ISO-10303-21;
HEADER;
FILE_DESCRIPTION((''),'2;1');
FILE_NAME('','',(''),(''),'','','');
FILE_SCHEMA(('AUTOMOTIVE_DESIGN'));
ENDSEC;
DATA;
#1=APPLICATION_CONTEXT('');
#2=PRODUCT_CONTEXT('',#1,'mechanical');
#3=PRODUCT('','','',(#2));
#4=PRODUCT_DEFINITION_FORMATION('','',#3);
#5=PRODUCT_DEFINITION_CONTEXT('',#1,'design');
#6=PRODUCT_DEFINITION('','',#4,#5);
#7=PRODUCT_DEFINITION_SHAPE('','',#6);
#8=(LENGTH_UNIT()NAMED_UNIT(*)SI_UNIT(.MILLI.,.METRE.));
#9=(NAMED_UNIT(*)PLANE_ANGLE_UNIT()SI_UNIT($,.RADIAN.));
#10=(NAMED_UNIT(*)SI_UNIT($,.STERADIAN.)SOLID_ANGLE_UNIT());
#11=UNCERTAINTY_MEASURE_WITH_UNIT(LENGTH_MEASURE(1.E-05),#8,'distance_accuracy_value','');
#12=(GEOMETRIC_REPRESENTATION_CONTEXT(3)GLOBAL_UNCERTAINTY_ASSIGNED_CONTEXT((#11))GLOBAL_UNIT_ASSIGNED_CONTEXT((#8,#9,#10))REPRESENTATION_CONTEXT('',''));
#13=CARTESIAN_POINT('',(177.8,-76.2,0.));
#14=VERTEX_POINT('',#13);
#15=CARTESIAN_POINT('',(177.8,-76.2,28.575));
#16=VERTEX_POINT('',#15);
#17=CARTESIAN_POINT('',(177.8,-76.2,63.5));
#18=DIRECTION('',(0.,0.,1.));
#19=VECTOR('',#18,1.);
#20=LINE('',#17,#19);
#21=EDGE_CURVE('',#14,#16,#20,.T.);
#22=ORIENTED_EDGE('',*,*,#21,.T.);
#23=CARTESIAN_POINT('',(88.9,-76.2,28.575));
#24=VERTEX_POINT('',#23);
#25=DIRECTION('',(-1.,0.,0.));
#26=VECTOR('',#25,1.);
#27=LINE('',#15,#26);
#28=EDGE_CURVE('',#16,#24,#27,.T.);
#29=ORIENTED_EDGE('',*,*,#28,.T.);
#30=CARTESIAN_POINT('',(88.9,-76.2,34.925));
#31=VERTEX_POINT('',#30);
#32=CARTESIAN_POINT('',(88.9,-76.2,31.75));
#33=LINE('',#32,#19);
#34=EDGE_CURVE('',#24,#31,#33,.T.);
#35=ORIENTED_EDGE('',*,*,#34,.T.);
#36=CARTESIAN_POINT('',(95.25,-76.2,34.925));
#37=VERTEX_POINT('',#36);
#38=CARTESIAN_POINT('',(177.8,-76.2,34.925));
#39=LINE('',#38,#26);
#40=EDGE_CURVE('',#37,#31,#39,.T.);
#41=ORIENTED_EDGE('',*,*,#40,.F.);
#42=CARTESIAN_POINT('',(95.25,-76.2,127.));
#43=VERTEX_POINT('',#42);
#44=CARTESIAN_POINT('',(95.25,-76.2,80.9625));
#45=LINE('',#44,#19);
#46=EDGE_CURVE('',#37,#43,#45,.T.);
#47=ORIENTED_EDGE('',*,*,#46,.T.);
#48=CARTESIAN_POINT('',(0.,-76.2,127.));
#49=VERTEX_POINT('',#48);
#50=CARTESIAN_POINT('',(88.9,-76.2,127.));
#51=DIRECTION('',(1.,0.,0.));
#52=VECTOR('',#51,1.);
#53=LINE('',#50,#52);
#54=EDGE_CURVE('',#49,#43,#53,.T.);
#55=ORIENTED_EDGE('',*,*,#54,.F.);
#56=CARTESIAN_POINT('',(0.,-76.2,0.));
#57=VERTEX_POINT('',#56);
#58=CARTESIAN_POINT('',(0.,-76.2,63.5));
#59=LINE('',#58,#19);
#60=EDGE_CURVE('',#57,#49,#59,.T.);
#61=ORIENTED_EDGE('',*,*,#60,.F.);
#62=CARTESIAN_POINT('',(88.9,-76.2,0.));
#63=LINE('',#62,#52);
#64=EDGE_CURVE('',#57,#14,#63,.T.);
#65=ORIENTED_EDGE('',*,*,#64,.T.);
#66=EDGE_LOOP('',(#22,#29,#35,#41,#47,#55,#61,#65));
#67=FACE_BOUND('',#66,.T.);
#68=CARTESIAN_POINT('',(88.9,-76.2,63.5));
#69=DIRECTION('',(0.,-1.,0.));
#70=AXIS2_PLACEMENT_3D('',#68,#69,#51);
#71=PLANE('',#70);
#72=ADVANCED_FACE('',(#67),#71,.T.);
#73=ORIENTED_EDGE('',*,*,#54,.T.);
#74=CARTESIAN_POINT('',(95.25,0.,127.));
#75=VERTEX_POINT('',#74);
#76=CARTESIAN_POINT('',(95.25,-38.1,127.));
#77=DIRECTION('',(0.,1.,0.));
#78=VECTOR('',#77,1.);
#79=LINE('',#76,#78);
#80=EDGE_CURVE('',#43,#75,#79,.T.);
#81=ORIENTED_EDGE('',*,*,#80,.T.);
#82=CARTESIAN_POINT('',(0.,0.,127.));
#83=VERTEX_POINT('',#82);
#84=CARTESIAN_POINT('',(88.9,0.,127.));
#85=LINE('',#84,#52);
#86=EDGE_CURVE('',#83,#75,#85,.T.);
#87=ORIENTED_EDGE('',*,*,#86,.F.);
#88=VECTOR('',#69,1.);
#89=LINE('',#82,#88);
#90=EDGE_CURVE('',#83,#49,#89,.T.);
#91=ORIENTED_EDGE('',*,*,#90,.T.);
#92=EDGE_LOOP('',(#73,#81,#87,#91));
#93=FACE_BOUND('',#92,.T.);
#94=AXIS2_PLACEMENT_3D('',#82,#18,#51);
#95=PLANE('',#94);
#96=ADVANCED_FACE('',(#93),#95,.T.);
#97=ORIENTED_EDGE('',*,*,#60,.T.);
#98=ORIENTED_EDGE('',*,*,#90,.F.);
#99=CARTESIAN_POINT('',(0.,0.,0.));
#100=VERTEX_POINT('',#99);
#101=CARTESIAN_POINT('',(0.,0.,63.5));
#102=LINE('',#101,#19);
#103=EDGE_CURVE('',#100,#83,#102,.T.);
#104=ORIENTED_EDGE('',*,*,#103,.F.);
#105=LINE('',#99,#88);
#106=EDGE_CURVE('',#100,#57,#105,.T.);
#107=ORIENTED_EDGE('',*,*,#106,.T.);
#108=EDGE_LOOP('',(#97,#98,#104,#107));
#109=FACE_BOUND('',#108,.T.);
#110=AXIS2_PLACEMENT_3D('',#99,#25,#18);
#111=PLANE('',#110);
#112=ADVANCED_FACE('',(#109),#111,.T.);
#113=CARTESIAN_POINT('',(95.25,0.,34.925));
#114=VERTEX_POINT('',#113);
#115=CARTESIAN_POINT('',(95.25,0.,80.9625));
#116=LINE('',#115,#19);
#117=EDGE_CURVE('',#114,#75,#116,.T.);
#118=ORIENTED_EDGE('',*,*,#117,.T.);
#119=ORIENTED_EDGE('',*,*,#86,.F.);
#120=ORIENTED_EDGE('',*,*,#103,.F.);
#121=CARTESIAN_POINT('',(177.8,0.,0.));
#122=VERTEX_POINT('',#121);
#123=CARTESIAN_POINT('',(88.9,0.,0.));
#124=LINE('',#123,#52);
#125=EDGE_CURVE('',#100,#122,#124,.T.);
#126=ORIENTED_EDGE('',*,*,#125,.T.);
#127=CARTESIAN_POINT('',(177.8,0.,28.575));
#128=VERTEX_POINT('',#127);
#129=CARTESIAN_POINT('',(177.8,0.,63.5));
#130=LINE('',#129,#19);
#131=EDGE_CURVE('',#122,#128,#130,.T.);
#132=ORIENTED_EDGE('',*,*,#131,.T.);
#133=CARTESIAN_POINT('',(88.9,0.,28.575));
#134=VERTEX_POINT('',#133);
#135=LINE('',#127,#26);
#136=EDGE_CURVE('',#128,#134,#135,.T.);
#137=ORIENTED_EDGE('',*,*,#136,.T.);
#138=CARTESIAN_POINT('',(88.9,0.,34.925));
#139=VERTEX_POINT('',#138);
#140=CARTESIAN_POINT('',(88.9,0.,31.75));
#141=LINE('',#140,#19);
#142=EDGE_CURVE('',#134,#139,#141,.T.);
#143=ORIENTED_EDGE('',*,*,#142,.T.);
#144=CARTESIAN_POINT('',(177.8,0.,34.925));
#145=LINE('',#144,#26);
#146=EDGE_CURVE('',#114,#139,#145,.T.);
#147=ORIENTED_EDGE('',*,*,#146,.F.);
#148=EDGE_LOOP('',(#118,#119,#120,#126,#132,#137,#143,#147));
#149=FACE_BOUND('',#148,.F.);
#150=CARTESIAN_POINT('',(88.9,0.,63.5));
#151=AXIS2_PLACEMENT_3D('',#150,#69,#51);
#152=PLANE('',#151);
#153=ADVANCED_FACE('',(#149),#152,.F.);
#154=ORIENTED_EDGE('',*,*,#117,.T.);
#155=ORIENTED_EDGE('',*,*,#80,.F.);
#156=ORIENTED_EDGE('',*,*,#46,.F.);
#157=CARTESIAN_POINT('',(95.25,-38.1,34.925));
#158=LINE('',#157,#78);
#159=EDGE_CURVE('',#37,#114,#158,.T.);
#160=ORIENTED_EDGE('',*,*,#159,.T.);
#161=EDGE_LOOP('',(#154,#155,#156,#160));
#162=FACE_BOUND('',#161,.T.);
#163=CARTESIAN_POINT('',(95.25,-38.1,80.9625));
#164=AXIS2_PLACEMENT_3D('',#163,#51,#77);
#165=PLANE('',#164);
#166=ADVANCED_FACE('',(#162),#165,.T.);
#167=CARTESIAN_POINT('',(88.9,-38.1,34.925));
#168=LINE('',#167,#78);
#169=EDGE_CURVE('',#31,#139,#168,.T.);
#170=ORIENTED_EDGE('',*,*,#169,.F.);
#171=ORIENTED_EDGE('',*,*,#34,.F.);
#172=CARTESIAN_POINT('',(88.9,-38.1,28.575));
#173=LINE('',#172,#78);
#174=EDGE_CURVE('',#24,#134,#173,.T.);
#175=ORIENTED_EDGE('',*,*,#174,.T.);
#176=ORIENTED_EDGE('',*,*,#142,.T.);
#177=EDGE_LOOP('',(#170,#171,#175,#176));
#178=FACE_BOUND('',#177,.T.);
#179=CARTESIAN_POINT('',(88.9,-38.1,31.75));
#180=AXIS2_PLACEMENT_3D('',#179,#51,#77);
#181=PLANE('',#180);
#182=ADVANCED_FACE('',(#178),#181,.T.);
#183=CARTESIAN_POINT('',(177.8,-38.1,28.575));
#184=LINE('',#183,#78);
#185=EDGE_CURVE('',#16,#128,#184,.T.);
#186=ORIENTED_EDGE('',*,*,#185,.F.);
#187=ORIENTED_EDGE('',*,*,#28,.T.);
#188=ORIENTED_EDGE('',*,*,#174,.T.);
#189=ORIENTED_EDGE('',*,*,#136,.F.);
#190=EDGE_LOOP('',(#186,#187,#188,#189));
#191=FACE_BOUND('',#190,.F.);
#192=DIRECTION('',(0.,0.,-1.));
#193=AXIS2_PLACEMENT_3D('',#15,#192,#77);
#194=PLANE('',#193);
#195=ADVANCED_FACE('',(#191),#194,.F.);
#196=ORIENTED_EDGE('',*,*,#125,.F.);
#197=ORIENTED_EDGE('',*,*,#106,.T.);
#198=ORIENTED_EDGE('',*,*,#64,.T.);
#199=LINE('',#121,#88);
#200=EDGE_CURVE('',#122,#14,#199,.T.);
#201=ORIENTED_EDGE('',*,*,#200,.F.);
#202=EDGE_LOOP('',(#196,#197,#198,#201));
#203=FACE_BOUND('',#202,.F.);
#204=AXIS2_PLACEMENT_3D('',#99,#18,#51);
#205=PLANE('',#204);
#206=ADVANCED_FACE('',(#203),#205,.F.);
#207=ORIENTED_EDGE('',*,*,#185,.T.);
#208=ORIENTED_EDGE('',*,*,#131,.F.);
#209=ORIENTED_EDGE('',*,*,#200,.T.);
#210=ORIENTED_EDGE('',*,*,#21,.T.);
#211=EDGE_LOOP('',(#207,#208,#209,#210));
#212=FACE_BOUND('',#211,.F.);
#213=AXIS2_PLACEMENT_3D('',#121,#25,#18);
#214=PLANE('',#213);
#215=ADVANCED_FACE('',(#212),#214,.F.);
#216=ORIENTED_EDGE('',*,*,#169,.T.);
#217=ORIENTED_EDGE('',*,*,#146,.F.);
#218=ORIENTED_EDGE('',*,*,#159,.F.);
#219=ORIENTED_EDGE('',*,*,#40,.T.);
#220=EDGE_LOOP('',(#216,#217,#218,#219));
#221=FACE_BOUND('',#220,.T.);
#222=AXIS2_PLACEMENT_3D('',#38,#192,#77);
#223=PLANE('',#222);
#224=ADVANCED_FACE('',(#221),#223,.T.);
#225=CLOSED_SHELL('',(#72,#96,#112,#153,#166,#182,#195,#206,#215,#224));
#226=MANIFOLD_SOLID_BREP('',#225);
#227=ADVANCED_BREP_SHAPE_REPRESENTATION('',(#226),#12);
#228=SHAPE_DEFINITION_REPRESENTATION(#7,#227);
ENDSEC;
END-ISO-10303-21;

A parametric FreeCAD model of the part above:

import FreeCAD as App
import Part
import Sketcher
Q = App.Units.Quantity


def add_polygon(sketch, points):
    """Adds a closed chain of lines whose ends are joined by coincident constraints."""
    first, n = sketch.GeometryCount, len(points)
    for a, b in zip(points, points[1:] + points[:1]):
        sketch.addGeometry(Part.LineSegment(App.Vector(*a, 0), App.Vector(*b, 0)), False)
    for i in range(n):
        sketch.addConstraint(Sketcher.Constraint("Coincident", first + i, 2, first + (i + 1) % n, 1))

doc = App.newDocument("Part")
params = doc.addObject("Spreadsheet::Sheet", "Params")
for row, (alias, value) in enumerate([
    ("sketch1_width", "7 in"),
    ("sketch1_height", "5 in"),
    ("pad1_length", "3 in"),
    ("sketch2_width", "3 in"),
    ("sketch2_height", "3.625 in"),
    ("pocket1_length", "3.25 in"),
    ("sketch3_width", "3 in"),
    ("sketch3_height", "0.25 in"),
    ("pocket2_length", "3.5 in"),
], start=1):
    params.set(f"A{row}", alias)
    params.set(f"B{row}", "=" + value)
    params.setAlias(f"B{row}", alias)

body = doc.addObject("PartDesign::Body", "Body")

# Sketch on XZ plane
sketch1 = body.newObject("Sketcher::SketchObject", "Sketch")
sketch1.AttachmentSupport = (doc.getObject("XZ_Plane"), [""])
sketch1.MapMode = "FlatFace"
add_polygon(sketch1, [(0, 127), (0, 0), (178, 0), (178, 127)])  # lines 0-3
sketch1.addConstraint(Sketcher.Constraint("Vertical", 0))
sketch1.addConstraint(Sketcher.Constraint("Horizontal", 1))
sketch1.addConstraint(Sketcher.Constraint("Vertical", 2))
sketch1.addConstraint(Sketcher.Constraint("Horizontal", 3))
sketch1.addConstraint(Sketcher.Constraint("Coincident", 0, 2, -1, 1))
sketch1.addConstraint(Sketcher.Constraint("DistanceX", 1, 1, 1, 2, Q("7 in")))
sketch1.addConstraint(Sketcher.Constraint("DistanceY", 0, 2, 0, 1, Q("5 in")))
sketch1.setExpression("Constraints[9]", "Params.sketch1_width")
sketch1.setExpression("Constraints[10]", "Params.sketch1_height")
pad1 = body.newObject("PartDesign::Pad", "Pad")
pad1.Profile = sketch1
pad1.setExpression("Length", "Params.pad1_length")

# Sketch on YZ plane
sketch2 = body.newObject("Sketcher::SketchObject", "Sketch001")
sketch2.AttachmentSupport = (doc.getObject("YZ_Plane"), [""])
sketch2.MapMode = "FlatFace"
sketch2.AttachmentOffset = App.Placement(App.Vector(0, 0, 7 * 25.4), App.Rotation())
add_polygon(sketch2, [(-76, 127), (-76, 35), (0, 35), (0, 127)])  # lines 0-3
sketch2.addConstraint(Sketcher.Constraint("Vertical", 0))
sketch2.addConstraint(Sketcher.Constraint("Horizontal", 1))
sketch2.addConstraint(Sketcher.Constraint("Vertical", 2))
sketch2.addConstraint(Sketcher.Constraint("Horizontal", 3))
sketch2.addConstraint(Sketcher.Constraint("PointOnObject", 1, 2, -2))
sketch2.addConstraint(Sketcher.Constraint("DistanceX", 1, 1, 1, 2, Q("3 in")))
sketch2.addConstraint(Sketcher.Constraint("DistanceY", -1, 1, 2, 2, Q("5 in")))
sketch2.addConstraint(Sketcher.Constraint("DistanceY", 0, 2, 0, 1, Q("3.625 in")))
sketch2.setExpression("Constraints[9]", "Params.sketch2_width")
sketch2.setExpression("Constraints[11]", "Params.sketch2_height")
pocket1 = body.newObject("PartDesign::Pocket", "Pocket")
pocket1.Profile = sketch2
pocket1.setExpression("Length", "Params.pocket1_length")

# Sketch on YZ plane
sketch3 = body.newObject("Sketcher::SketchObject", "Sketch002")
sketch3.AttachmentSupport = (doc.getObject("YZ_Plane"), [""])
sketch3.MapMode = "FlatFace"
sketch3.AttachmentOffset = App.Placement(App.Vector(0, 0, 7 * 25.4), App.Rotation())
add_polygon(sketch3, [(-76, 35), (-76, 29), (0, 29), (0, 35)])  # lines 0-3
sketch3.addConstraint(Sketcher.Constraint("Vertical", 0))
sketch3.addConstraint(Sketcher.Constraint("Horizontal", 1))
sketch3.addConstraint(Sketcher.Constraint("Vertical", 2))
sketch3.addConstraint(Sketcher.Constraint("Horizontal", 3))
sketch3.addConstraint(Sketcher.Constraint("PointOnObject", 1, 2, -2))
sketch3.addConstraint(Sketcher.Constraint("DistanceX", 1, 1, 1, 2, Q("3 in")))
sketch3.addConstraint(Sketcher.Constraint("DistanceY", 0, 2, 0, 1, Q("0.25 in")))
sketch3.addConstraint(Sketcher.Constraint("DistanceY", -1, 1, 0, 2, Q("1.125 in")))
sketch3.setExpression("Constraints[9]", "Params.sketch3_width")
sketch3.setExpression("Constraints[10]", "Params.sketch3_height")
pocket2 = body.newObject("PartDesign::Pocket", "Pocket001")
pocket2.Profile = sketch3
pocket2.setExpression("Length", "Params.pocket2_length")

doc.recompute()
